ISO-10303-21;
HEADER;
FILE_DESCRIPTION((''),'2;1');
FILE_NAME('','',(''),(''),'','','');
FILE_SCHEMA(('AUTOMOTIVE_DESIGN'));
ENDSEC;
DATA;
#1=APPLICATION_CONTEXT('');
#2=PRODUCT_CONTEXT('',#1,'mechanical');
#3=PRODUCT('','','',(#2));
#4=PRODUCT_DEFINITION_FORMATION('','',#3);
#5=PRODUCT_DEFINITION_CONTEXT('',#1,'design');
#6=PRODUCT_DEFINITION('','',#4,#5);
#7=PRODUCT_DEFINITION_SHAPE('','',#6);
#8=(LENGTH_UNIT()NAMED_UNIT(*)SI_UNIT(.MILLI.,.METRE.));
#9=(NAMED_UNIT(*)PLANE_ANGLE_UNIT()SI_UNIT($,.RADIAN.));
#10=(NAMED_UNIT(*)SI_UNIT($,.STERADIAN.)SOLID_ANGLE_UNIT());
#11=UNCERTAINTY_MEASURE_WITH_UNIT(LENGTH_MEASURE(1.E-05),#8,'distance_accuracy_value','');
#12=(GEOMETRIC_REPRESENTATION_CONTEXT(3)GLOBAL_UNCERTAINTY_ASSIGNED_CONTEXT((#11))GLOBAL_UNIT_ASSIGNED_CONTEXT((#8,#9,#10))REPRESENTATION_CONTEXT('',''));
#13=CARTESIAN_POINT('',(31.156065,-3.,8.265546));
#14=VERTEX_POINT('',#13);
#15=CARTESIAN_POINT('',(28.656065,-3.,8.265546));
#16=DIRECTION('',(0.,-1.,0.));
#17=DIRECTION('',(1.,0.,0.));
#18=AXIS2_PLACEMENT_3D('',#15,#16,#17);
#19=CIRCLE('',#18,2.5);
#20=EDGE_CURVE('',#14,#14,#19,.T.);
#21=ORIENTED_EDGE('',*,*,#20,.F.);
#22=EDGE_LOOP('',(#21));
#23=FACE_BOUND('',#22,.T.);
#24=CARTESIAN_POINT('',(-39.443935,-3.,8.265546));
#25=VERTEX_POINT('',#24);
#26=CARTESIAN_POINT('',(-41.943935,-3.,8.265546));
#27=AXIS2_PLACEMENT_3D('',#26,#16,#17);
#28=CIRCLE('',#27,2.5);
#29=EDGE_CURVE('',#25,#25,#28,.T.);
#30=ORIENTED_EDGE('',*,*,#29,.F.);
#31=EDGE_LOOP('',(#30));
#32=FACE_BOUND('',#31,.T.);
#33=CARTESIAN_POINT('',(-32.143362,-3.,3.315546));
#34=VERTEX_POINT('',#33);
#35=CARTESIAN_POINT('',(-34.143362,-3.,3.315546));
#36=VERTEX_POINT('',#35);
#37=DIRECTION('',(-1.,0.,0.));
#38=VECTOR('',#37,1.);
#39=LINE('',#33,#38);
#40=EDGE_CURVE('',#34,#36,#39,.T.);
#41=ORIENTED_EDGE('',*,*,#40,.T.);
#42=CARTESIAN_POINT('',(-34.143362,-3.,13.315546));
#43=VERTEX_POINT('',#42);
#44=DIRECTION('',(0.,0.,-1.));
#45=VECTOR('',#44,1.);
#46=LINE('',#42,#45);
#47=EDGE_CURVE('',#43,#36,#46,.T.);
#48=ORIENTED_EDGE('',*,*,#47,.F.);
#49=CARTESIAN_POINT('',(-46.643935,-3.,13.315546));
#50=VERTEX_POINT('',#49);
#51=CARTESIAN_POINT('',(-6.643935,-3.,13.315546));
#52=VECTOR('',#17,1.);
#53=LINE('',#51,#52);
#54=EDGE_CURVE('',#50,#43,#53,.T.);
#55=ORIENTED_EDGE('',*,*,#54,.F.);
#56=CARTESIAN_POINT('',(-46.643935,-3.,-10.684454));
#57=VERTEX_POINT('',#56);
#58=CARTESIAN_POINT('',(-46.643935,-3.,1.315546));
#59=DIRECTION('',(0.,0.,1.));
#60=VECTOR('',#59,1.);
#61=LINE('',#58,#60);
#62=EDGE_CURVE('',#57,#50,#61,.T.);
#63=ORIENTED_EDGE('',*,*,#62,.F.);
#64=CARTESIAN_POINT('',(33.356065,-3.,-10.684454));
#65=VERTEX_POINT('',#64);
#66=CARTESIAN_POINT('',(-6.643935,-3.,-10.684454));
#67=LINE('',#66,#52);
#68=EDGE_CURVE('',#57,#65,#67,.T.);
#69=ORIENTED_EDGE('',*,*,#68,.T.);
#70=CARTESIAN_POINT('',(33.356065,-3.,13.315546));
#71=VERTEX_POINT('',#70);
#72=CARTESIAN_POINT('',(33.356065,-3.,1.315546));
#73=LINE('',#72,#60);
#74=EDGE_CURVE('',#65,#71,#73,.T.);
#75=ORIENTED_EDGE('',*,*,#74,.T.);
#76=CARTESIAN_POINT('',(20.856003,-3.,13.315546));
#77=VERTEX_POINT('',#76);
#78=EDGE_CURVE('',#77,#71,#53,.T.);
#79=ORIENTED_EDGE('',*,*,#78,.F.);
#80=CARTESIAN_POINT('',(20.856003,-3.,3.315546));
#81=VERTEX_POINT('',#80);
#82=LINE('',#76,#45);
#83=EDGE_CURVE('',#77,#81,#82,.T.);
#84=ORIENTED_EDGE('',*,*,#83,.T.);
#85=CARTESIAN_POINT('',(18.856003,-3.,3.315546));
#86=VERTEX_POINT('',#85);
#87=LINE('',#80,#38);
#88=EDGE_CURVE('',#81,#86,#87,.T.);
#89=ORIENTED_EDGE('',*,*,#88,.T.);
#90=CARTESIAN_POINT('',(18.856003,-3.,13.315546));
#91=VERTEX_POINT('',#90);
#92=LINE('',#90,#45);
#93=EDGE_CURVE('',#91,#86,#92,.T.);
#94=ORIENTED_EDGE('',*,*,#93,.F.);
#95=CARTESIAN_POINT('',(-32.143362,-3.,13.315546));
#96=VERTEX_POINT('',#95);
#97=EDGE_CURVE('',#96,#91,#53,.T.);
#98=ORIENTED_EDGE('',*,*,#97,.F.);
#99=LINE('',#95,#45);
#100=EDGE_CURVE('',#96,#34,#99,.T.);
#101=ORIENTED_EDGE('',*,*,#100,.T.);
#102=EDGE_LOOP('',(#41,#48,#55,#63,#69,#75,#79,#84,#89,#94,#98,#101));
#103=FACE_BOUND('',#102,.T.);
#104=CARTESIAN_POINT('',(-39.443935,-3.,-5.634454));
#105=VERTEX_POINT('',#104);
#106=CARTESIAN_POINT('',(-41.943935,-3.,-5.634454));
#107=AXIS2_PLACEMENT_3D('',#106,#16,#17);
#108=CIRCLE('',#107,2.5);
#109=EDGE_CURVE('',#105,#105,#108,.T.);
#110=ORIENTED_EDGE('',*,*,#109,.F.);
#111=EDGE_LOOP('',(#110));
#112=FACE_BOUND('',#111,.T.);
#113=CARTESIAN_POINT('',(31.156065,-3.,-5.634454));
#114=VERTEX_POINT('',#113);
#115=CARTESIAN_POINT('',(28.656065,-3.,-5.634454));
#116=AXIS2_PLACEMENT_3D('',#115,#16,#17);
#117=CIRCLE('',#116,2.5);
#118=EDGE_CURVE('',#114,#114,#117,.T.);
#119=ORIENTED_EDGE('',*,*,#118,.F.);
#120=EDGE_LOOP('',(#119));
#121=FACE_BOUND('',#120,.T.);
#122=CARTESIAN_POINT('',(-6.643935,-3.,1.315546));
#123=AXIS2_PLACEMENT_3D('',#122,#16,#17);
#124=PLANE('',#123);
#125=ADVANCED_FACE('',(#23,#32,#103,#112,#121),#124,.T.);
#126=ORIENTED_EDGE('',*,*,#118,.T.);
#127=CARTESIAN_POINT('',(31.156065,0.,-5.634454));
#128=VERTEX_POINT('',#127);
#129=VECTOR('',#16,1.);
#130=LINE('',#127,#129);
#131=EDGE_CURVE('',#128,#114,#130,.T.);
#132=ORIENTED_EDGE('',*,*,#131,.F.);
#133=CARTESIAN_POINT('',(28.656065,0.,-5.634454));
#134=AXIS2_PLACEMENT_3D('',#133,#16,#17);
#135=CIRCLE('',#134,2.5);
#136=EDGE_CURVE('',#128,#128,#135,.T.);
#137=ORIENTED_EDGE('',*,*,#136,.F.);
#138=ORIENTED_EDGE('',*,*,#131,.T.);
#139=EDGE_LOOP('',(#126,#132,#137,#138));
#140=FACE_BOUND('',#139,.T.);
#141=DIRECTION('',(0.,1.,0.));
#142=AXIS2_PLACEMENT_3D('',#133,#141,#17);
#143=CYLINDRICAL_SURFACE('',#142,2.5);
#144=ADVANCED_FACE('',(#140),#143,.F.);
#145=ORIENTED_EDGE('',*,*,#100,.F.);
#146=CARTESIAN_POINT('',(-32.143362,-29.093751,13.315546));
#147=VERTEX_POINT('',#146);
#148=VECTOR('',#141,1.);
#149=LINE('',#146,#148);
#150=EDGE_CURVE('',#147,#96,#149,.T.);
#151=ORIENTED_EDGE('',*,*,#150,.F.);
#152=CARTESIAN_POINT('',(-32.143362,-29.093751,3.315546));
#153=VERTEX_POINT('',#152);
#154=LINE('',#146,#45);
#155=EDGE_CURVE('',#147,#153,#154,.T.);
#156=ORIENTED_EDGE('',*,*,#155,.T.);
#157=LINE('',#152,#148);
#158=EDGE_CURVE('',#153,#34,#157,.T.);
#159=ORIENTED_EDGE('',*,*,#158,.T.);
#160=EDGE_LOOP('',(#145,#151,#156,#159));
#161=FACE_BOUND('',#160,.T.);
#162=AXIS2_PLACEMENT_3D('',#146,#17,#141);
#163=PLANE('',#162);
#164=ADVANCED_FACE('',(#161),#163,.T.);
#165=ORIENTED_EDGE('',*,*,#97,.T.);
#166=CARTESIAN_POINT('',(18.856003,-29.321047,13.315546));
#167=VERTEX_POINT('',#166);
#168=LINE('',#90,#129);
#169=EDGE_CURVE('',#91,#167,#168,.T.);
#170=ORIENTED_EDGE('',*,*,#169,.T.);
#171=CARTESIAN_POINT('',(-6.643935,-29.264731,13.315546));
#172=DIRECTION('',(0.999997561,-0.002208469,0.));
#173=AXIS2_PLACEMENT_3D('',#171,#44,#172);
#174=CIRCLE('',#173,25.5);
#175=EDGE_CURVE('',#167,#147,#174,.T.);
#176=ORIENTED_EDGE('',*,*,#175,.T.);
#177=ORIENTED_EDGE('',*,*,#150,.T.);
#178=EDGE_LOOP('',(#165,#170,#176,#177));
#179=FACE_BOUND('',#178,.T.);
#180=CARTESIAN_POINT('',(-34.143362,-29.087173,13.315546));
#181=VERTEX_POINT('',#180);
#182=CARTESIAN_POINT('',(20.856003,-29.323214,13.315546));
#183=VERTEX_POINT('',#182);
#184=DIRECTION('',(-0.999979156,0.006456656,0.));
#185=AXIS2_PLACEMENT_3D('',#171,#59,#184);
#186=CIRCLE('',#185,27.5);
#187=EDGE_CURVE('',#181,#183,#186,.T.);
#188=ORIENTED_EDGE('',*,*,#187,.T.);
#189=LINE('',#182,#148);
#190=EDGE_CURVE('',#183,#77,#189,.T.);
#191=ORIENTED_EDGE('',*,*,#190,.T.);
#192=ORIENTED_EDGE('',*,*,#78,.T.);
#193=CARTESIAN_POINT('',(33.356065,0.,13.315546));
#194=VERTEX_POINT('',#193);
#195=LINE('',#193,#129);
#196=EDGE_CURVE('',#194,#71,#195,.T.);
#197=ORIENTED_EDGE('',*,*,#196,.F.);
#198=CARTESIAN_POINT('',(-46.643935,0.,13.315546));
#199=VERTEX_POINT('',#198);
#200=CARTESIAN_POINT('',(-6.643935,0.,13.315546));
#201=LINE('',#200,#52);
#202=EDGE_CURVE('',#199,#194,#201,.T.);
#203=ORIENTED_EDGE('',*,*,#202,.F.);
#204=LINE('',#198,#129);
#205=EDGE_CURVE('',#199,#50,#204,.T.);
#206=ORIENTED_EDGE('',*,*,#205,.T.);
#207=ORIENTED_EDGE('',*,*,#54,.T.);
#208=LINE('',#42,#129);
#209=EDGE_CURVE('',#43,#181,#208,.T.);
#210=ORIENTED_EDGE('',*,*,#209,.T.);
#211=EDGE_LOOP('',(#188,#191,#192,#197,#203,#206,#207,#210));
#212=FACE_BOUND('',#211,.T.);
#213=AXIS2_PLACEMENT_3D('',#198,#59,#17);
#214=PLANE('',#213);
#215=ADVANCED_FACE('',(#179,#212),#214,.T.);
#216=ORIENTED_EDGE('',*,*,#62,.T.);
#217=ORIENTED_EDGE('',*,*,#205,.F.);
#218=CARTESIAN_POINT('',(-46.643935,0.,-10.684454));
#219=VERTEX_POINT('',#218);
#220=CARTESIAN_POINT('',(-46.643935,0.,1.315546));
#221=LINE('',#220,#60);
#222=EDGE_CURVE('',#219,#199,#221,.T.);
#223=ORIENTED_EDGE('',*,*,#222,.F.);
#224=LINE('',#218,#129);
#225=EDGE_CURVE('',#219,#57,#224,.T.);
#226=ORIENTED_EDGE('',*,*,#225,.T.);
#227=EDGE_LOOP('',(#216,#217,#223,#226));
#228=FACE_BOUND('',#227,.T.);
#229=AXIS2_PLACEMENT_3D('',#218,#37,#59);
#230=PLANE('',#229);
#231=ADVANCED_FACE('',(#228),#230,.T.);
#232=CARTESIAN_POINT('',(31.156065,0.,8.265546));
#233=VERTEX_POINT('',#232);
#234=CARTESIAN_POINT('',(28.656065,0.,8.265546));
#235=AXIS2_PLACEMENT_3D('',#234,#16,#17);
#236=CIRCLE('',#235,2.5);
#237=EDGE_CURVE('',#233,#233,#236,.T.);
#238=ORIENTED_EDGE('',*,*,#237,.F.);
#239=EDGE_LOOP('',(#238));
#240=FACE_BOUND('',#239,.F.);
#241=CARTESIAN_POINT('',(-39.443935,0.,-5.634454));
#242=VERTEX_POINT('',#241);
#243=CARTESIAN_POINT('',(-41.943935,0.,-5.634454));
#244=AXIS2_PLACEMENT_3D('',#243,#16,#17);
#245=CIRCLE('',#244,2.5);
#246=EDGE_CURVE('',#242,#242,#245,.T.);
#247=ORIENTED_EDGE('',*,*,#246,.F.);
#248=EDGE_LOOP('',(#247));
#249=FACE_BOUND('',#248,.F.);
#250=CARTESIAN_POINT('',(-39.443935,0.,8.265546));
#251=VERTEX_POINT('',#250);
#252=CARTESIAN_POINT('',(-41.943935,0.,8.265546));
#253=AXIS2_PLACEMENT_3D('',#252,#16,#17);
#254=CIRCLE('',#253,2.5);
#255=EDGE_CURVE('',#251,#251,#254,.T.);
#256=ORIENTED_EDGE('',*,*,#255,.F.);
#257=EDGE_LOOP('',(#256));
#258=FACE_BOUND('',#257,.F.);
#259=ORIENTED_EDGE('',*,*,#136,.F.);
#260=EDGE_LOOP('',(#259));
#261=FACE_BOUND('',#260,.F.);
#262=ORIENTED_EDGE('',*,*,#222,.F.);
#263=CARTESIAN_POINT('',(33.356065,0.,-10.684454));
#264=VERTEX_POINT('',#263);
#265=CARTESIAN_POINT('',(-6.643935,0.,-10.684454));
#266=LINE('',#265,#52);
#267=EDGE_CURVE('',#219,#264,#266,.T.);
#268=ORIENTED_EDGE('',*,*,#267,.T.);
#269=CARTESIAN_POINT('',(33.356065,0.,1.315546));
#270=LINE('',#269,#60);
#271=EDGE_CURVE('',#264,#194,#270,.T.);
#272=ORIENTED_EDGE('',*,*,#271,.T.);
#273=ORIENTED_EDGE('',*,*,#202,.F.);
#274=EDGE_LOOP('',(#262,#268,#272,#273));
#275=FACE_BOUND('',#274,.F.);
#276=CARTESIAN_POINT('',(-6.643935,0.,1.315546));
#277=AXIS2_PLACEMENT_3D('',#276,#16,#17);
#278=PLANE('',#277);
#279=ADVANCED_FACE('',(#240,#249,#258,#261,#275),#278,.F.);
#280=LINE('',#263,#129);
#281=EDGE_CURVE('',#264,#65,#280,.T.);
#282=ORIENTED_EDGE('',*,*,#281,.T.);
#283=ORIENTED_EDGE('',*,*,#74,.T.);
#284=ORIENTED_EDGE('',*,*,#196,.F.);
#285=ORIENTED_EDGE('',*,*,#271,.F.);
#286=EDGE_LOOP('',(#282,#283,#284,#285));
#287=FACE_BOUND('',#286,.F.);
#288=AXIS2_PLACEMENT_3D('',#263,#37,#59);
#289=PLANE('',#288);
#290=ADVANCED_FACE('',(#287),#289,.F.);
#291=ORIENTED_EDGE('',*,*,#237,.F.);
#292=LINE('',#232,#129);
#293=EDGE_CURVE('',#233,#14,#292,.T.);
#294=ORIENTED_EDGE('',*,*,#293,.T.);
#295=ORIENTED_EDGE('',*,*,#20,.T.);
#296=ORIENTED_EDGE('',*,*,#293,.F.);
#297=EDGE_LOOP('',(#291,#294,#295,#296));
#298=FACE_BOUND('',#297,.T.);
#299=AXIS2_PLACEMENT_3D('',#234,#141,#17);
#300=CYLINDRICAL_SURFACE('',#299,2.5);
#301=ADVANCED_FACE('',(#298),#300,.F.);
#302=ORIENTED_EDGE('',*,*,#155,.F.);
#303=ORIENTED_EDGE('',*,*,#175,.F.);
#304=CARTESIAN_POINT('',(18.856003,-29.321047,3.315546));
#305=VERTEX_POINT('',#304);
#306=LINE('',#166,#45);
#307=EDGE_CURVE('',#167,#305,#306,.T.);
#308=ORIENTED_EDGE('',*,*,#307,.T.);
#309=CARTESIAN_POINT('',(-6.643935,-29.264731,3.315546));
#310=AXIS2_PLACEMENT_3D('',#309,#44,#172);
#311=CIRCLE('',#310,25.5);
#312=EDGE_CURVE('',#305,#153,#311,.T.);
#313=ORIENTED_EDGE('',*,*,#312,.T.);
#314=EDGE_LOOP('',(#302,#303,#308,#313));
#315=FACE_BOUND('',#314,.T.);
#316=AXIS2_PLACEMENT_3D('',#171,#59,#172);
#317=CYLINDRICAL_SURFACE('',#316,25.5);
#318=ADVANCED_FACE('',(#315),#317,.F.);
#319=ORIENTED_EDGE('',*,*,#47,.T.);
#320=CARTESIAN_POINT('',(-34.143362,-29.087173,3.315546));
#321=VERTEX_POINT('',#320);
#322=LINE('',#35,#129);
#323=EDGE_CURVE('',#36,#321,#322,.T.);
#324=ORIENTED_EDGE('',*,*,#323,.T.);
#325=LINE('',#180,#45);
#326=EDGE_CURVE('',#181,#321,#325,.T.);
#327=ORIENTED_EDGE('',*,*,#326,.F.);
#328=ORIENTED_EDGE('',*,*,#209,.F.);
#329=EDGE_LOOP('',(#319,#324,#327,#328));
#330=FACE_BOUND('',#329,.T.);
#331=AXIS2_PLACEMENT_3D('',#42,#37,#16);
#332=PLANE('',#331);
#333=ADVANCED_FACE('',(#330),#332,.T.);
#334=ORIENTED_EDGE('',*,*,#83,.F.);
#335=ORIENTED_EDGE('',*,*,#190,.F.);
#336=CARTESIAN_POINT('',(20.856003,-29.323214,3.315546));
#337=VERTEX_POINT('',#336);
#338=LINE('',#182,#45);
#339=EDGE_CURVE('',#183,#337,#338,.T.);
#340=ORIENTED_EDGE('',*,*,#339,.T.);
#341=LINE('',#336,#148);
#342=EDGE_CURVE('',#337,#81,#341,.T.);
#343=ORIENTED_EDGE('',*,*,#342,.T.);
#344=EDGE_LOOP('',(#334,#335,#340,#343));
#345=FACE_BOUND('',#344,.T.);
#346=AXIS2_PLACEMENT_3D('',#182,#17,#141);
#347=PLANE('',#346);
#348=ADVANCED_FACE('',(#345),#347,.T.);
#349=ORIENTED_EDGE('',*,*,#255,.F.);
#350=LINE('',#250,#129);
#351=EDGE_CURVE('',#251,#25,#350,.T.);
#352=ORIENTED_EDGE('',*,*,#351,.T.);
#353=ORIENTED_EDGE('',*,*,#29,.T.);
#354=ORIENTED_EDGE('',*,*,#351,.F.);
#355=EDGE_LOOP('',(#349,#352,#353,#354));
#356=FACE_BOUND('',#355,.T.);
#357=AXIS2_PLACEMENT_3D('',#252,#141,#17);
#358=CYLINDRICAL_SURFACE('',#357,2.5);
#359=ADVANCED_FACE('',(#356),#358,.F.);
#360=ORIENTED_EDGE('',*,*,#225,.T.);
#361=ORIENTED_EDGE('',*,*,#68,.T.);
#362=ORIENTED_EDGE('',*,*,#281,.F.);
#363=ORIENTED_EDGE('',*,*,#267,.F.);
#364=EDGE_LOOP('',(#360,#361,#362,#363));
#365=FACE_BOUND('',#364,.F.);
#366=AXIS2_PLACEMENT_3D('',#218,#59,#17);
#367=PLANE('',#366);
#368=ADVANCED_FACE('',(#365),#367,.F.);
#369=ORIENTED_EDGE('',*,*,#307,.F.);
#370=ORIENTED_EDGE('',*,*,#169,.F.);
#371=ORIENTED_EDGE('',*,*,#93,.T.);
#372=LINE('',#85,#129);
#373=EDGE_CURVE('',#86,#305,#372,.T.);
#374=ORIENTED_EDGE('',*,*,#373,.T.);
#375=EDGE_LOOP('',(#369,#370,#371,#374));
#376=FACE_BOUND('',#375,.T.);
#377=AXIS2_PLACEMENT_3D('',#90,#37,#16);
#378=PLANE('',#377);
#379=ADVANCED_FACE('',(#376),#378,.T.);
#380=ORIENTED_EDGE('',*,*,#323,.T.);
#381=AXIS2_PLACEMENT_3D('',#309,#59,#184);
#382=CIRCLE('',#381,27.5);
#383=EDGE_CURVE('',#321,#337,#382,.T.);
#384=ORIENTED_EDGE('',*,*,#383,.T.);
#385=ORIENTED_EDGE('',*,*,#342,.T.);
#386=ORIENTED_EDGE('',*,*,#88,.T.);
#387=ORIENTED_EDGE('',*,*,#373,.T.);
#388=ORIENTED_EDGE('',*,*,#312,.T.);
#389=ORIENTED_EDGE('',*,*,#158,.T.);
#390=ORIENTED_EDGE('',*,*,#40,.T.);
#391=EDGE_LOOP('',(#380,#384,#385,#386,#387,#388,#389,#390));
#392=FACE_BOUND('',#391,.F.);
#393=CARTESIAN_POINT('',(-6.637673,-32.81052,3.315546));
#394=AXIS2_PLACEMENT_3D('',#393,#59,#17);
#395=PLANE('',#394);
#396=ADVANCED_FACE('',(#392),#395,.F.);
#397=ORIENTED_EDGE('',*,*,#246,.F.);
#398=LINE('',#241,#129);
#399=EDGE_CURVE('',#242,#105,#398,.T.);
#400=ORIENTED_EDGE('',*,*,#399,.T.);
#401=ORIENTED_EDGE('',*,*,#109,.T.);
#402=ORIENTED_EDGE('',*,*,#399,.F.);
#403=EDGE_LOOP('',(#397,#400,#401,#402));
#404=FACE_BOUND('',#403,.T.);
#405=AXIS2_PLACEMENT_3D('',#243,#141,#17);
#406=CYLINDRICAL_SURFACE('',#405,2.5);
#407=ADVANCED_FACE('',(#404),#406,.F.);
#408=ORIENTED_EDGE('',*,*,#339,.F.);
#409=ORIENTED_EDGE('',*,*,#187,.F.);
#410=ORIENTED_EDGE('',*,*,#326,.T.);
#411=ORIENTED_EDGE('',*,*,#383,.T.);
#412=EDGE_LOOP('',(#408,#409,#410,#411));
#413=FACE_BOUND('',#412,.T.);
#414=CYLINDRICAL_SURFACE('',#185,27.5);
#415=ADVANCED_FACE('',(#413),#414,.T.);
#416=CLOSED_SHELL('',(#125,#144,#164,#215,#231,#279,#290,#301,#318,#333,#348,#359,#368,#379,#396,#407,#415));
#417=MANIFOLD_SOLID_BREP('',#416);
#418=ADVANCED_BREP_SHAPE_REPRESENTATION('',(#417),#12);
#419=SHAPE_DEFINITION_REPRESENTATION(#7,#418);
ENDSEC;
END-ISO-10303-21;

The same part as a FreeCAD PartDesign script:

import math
import FreeCAD as App
import Part
import Sketcher

V = App.Vector
Q = App.Units.Quantity


def add_polygon(sketch, points):
    """Adds a closed chain of lines whose ends are joined by coincident constraints."""
    first, n = sketch.GeometryCount, len(points)
    for a, b in zip(points, points[1:] + points[:1]):
        sketch.addGeometry(Part.LineSegment(App.Vector(*a, 0), App.Vector(*b, 0)), False)
    for i in range(n):
        sketch.addConstraint(Sketcher.Constraint("Coincident", first + i, 2, first + (i + 1) % n, 1))

doc = App.newDocument("Part")
body = doc.addObject("PartDesign::Body", "Body")

sketch1 = body.newObject("Sketcher::SketchObject", "Sketch")
sketch1.AttachmentSupport = (doc.getObject("XZ_Plane"), [""])
sketch1.MapMode = "FlatFace"
add_polygon(sketch1, [(-46.643935, 13.315546), (-46.643935, -10.684454), (33.356065, -10.684454), (33.356065, 13.315546)])
sketch1.addGeometry(Part.Circle(V(-41.943935, -5.634454, 0), V(0, 0, 1), 2.5), False)
sketch1.addGeometry(Part.Circle(V(28.656065, -5.634454, 0), V(0, 0, 1), 2.5), False)
sketch1.addGeometry(Part.Circle(V(-41.943935, 8.265546, 0), V(0, 0, 1), 2.5), False)
sketch1.addGeometry(Part.Circle(V(28.656065, 8.265546, 0), V(0, 0, 1), 2.5), False)
sketch1.addConstraint([
    Sketcher.Constraint("Vertical", 0),
    Sketcher.Constraint("Horizontal", 1),
    Sketcher.Constraint("Vertical", 2),
    Sketcher.Constraint("Horizontal", 3),
    Sketcher.Constraint("Equal", 4, 5),
    Sketcher.Constraint("Equal", 5, 6),
    Sketcher.Constraint("Equal", 6, 7),
    Sketcher.Constraint("Horizontal", 4, 3, 5, 3),
    Sketcher.Constraint("Horizontal", 6, 3, 7, 3),
    Sketcher.Constraint("Vertical", 4, 3, 6, 3),
    Sketcher.Constraint("Vertical", 5, 3, 7, 3),
    Sketcher.Constraint("Diameter", 4, Q("5 mm")),
    Sketcher.Constraint("DistanceX", 1, 1, 1, 2, Q("80 mm")),
    Sketcher.Constraint("DistanceY", 0, 2, 0, 1, Q("24 mm")),
    Sketcher.Constraint("DistanceX", 4, 3, 5, 3, Q("70.6 mm")),
    Sketcher.Constraint("DistanceY", 4, 3, 6, 3, Q("13.9 mm")),
    Sketcher.Constraint("DistanceX", 0, 2, 4, 3, Q("4.7 mm")),
    Sketcher.Constraint("DistanceY", 0, 2, 4, 3, Q("5.05 mm")),
    Sketcher.Constraint("DistanceX", 4, 3, -1, 1, Q("41.943935 mm")),
    Sketcher.Constraint("DistanceY", 4, 3, -1, 1, Q("5.634454 mm")),
])
pad1 = body.newObject("PartDesign::Pad", "Pad")
pad1.Profile = sketch1
pad1.Length = 3

sketch2 = body.newObject("Sketcher::SketchObject", "Sketch001")
sketch2.AttachmentSupport = (doc.getObject("XY_Plane"), [""])
sketch2.MapMode = "FlatFace"
sketch2.AttachmentOffset = App.Placement(V(0, 0, 13.315546), App.Rotation())
sketch2.addGeometry([
    Part.ArcOfCircle(Part.Circle(V(-6.643935, -29.264731, 0), V(0, 0, 1), 25.5), math.radians(179.615823), math.radians(359.873464)),
    Part.LineSegment(V(-32.143362, -29.093751, 0), V(-32.143362, -3, 0)),
    Part.LineSegment(V(-32.143362, -3, 0), V(-34.143362, -3, 0)),
    Part.LineSegment(V(-34.143362, -3, 0), V(-34.143362, -29.087173, 0)),
    Part.ArcOfCircle(Part.Circle(V(-6.643935, -29.264731, 0), V(0, 0, 1), 27.5), math.radians(179.630058), math.radians(359.878152)),
    Part.LineSegment(V(20.856003, -29.323214, 0), V(20.856003, -3, 0)),
    Part.LineSegment(V(20.856003, -3, 0), V(18.856003, -3, 0)),
    Part.LineSegment(V(18.856003, -3, 0), V(18.856003, -29.321047, 0)),
], False)
sketch2.addConstraint([
    Sketcher.Constraint("Coincident", 0, 1, 1, 1),
    Sketcher.Constraint("Coincident", 1, 2, 2, 1),
    Sketcher.Constraint("Coincident", 2, 2, 3, 1),
    Sketcher.Constraint("Coincident", 3, 2, 4, 1),
    Sketcher.Constraint("Coincident", 4, 2, 5, 1),
    Sketcher.Constraint("Coincident", 5, 2, 6, 1),
    Sketcher.Constraint("Coincident", 6, 2, 7, 1),
    Sketcher.Constraint("Coincident", 7, 2, 0, 2),
    Sketcher.Constraint("Vertical", 1),
    Sketcher.Constraint("Horizontal", 2),
    Sketcher.Constraint("Vertical", 3),
    Sketcher.Constraint("Vertical", 5),
    Sketcher.Constraint("Horizontal", 6),
    Sketcher.Constraint("Vertical", 7),
    Sketcher.Constraint("Coincident", 4, 3, 0, 3),
    Sketcher.Constraint("Horizontal", 2, 2, 5, 2),
    Sketcher.Constraint("Equal", 2, 6),
    Sketcher.Constraint("Radius", 0, Q("25.5 mm")),
    Sketcher.Constraint("Radius", 4, Q("27.5 mm")),
    Sketcher.Constraint("DistanceX", 2, 2, 2, 1, Q("2 mm")),
    Sketcher.Constraint("DistanceY", 1, 2, -1, 1, Q("3 mm")),
    Sketcher.Constraint("DistanceY", 1, 1, 1, 2, Q("26.093751 mm")),
    Sketcher.Constraint("DistanceY", 3, 2, 3, 1, Q("26.087173 mm")),
    Sketcher.Constraint("DistanceY", 5, 1, 5, 2, Q("26.323214 mm")),
    Sketcher.Constraint("DistanceX", 0, 3, -1, 1, Q("6.643935 mm")),
])
pad2 = body.newObject("PartDesign::Pad", "Pad001")
pad2.Profile = sketch2
pad2.Length = 10
pad2.Reversed = True

doc.recompute()
